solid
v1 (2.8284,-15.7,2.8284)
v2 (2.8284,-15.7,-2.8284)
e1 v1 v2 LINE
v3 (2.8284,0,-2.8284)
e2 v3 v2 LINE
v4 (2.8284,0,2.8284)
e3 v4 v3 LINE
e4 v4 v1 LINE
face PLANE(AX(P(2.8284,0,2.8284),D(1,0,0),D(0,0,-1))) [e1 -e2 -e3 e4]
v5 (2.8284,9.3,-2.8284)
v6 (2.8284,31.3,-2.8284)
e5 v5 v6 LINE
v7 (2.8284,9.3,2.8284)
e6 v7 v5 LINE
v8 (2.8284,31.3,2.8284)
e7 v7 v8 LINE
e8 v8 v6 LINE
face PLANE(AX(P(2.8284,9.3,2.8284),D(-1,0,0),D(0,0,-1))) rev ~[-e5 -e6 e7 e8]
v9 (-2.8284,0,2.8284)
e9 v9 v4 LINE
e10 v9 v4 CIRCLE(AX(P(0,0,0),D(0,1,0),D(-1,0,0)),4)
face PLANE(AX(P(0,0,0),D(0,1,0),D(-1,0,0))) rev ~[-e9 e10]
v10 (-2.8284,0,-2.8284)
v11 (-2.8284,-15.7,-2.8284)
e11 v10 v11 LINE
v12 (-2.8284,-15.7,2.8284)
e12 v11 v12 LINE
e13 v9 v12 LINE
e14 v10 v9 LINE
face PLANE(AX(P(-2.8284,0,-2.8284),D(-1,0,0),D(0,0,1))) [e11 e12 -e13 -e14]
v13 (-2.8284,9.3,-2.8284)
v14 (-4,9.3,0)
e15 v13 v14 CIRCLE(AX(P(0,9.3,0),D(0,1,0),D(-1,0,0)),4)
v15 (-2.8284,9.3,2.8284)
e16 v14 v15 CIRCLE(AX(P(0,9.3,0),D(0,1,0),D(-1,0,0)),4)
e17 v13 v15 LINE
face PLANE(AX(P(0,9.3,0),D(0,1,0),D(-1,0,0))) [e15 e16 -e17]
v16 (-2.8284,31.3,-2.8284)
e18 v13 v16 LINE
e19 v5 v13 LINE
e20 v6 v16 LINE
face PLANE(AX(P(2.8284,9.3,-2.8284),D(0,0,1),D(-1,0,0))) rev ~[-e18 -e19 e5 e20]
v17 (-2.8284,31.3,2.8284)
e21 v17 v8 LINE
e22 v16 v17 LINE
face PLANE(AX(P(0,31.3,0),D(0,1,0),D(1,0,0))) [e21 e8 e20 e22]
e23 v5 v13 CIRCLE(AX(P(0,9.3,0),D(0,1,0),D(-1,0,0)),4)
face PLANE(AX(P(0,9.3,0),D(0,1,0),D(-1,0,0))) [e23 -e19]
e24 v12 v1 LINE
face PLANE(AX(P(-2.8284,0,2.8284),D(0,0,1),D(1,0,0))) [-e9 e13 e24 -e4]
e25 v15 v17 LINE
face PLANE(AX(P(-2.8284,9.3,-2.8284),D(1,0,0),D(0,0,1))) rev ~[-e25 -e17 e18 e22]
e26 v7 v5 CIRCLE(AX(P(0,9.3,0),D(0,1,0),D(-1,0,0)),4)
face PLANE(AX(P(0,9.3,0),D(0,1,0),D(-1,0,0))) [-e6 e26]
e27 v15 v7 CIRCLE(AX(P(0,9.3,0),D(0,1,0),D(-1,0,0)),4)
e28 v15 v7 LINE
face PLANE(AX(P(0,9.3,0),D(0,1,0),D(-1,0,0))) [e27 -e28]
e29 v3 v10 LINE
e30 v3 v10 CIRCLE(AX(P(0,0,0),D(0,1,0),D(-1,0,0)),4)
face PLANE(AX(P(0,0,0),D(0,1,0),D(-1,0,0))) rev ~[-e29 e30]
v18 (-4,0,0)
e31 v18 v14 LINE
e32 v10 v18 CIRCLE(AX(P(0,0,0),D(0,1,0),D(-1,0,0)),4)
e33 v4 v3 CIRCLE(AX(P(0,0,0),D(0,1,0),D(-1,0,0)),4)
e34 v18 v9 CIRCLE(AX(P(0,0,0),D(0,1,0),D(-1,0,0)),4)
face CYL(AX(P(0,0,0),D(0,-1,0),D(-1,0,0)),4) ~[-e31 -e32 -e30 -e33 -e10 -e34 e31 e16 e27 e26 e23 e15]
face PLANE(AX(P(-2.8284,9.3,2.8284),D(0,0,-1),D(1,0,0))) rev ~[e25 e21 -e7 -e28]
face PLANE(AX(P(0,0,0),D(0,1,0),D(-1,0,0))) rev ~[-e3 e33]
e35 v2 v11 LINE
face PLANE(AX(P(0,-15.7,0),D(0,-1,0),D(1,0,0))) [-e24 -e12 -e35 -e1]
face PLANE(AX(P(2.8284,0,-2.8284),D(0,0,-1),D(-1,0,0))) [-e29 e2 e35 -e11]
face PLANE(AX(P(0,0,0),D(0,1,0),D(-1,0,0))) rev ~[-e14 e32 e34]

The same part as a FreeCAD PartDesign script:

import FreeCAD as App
import Part
import Sketcher

V = App.Vector


def add_polygon(sketch, points):
    """Adds a closed chain of lines whose ends are joined by coincident constraints."""
    first, n = sketch.GeometryCount, len(points)
    for a, b in zip(points, points[1:] + points[:1]):
        sketch.addGeometry(Part.LineSegment(App.Vector(*a, 0), App.Vector(*b, 0)), False)
    for i in range(n):
        sketch.addConstraint(Sketcher.Constraint("Coincident", first + i, 2, first + (i + 1) % n, 1))

doc = App.newDocument("Part")
body = doc.addObject("PartDesign::Body", "Body")

# Sketch on XZ plane
sketch1 = body.newObject("Sketcher::SketchObject", "Sketch")
sketch1.AttachmentSupport = (doc.getObject("XZ_Plane"), [""])
sketch1.MapMode = "FlatFace"
sketch1.addGeometry(Part.Circle(V(0, 0, 0), V(0, 0, 1), 4), False)
sketch1.addConstraint([
    Sketcher.Constraint("Coincident", 0, 3, -1, 1),
    Sketcher.Constraint("Diameter", 0, 8.0),
])
pad1 = body.newObject("PartDesign::Pad", "Pad")
pad1.Profile = sketch1
pad1.Length = 9.3
pad1.Reversed = True

# Sketch on XZ plane
sketch2 = body.newObject("Sketcher::SketchObject", "Sketch001")
sketch2.AttachmentSupport = (doc.getObject("XZ_Plane"), [""])
sketch2.MapMode = "FlatFace"
sketch2.AttachmentOffset = App.Placement(V(0, 0, -9.3), App.Rotation())
add_polygon(sketch2, [(3, 3), (3, -3), (-3, -3), (-3, 3)])  # lines 0-3
sketch2.addConstraint([
    Sketcher.Constraint("Vertical", 0),
    Sketcher.Constraint("Horizontal", 1),
    Sketcher.Constraint("Vertical", 2),
    Sketcher.Constraint("Horizontal", 3),
    Sketcher.Constraint("Symmetric", 0, 2, 2, 2, -1, 1),
    Sketcher.Constraint("Equal", 3, 0),
    Sketcher.Constraint("DistanceX", 1, 2, 1, 1, 5.6568),
])
pad2 = body.newObject("PartDesign::Pad", "Pad001")
pad2.Profile = sketch2
pad2.Length = 22
pad2.Reversed = True

# Sketch on XZ plane
sketch3 = body.newObject("Sketcher::SketchObject", "Sketch002")
sketch3.AttachmentSupport = (doc.getObject("XZ_Plane"), [""])
sketch3.MapMode = "FlatFace"
add_polygon(sketch3, [(-3, -3), (3, -3), (3, 3), (-3, 3)])  # lines 0-3
sketch3.addConstraint([
    Sketcher.Constraint("Horizontal", 0),
    Sketcher.Constraint("Vertical", 1),
    Sketcher.Constraint("Horizontal", 2),
    Sketcher.Constraint("Vertical", 3),
    Sketcher.Constraint("Symmetric", 0, 2, 2, 2, -1, 1),
    Sketcher.Constraint("Equal", 2, 1),
    Sketcher.Constraint("DistanceX", 0, 1, 0, 2, 5.6568),
])
pad3 = body.newObject("PartDesign::Pad", "Pad002")
pad3.Profile = sketch3
pad3.Length = 15.7

doc.recompute()
